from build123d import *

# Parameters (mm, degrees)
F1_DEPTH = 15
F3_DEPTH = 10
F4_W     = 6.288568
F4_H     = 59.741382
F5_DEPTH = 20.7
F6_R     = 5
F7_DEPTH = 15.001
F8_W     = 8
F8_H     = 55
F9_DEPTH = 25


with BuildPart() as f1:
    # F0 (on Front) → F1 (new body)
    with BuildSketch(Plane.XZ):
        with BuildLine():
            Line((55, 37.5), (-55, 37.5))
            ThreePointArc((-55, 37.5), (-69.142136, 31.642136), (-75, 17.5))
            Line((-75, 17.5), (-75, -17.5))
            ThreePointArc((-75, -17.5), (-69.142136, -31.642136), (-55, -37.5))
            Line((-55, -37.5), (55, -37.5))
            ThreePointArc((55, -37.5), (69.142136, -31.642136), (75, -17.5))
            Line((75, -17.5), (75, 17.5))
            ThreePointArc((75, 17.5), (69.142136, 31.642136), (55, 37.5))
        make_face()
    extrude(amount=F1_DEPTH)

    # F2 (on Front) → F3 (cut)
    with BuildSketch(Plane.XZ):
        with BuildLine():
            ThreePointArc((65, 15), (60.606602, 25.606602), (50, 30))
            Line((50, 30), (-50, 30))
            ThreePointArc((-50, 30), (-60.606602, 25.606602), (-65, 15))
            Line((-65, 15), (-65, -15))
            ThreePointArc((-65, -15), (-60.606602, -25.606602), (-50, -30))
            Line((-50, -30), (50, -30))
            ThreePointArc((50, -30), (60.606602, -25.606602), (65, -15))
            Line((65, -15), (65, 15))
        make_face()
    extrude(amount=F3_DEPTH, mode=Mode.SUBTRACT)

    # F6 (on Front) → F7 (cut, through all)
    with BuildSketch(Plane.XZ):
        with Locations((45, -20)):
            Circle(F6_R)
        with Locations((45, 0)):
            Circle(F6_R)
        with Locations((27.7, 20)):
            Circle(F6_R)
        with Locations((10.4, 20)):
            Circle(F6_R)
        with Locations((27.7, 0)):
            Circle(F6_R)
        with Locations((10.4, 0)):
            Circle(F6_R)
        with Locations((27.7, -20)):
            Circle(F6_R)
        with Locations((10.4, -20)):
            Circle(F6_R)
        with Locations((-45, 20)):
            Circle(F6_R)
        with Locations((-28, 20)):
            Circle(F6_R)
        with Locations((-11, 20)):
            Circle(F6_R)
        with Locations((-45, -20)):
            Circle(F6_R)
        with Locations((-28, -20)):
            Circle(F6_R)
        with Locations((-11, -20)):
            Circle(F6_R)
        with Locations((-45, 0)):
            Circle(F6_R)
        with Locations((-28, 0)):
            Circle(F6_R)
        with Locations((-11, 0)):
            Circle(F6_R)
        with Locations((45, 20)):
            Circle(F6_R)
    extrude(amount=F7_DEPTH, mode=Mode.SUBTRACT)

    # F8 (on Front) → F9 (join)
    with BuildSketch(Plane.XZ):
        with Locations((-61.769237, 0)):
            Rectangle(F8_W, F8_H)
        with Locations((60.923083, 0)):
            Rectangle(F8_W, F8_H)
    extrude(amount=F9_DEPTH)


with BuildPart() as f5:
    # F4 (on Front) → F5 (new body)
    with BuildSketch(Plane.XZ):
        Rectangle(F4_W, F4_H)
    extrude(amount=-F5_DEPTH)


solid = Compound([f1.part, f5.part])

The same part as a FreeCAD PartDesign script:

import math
import FreeCAD as App
import Part
import Sketcher
from FreeCAD import Vector

doc = App.newDocument("Part")
params = doc.addObject("Spreadsheet::Sheet", "Params")
for row, (alias, value) in enumerate([
    ("sketch1_radius", "19.999999 mm"),
    ("sketch1_width", "110 mm"),
    ("sketch1_height", "35 mm"),
    ("pad1_length", "15 mm"),
    ("sketch2_radius", "14.999999 mm"),
    ("sketch2_width", "100 mm"),
    ("sketch2_height", "30 mm"),
    ("pocket1_length", "10 mm"),
    ("sketch3_diameter", "10 mm"),
    ("sketch4_width", "8 mm"),
    ("sketch4_height", "55 mm"),
    ("pad2_length", "25 mm"),
    ("pad3_length", "20.7 mm"),
], start=1):
    params.set(f"A{row}", alias)
    params.set(f"B{row}", "=" + value)
    params.setAlias(f"B{row}", alias)

body = doc.addObject("PartDesign::Body", "Body")

# Sketch on XZ plane
sketch1 = doc.addObject("Sketcher::SketchObject", "Sketch")
body.addObject(sketch1)
sketch1.AttachmentSupport = (doc.XZ_Plane, [""])
sketch1.MapMode = "FlatFace"
sketch1.addGeometry([
    Part.LineSegment(Vector(55, 38, 0), Vector(-55, 38, 0)),  # 0
    Part.ArcOfCircle(Part.Circle(Vector(-55, 18, 0), Vector(0, 0, 1), 20), math.radians(90), math.radians(180)),  # 1
    Part.LineSegment(Vector(-75, 18, 0), Vector(-75, -18, 0)),  # 2
    Part.ArcOfCircle(Part.Circle(Vector(-55, -18, 0), Vector(0, 0, 1), 20), math.radians(180), math.radians(270)),  # 3
    Part.LineSegment(Vector(-55, -38, 0), Vector(55, -38, 0)),  # 4
    Part.ArcOfCircle(Part.Circle(Vector(55, -18, 0), Vector(0, 0, 1), 20), math.radians(-90), math.radians(0)),  # 5
    Part.LineSegment(Vector(75, -18, 0), Vector(75, 18, 0)),  # 6
    Part.ArcOfCircle(Part.Circle(Vector(55, 18, 0), Vector(0, 0, 1), 20), math.radians(0), math.radians(90)),  # 7
], False)
sketch1.addConstraint([
    Sketcher.Constraint("Tangent", 0, 2, 1, 1),
    Sketcher.Constraint("Tangent", 1, 2, 2, 1),
    Sketcher.Constraint("Tangent", 2, 2, 3, 1),
    Sketcher.Constraint("Tangent", 3, 2, 4, 1),
    Sketcher.Constraint("Tangent", 4, 2, 5, 1),
    Sketcher.Constraint("Tangent", 5, 2, 6, 1),
    Sketcher.Constraint("Tangent", 6, 2, 7, 1),
    Sketcher.Constraint("Tangent", 7, 2, 0, 1),
    Sketcher.Constraint("Horizontal", 0),
    Sketcher.Constraint("Vertical", 2),
    Sketcher.Constraint("Horizontal", 4),
    Sketcher.Constraint("Vertical", 6),
    Sketcher.Constraint("Equal", 1, 3),
    Sketcher.Constraint("Equal", 3, 5),
    Sketcher.Constraint("Equal", 5, 7),
    Sketcher.Constraint("Symmetric", 1, 3, 5, 3, -1, 1),
    Sketcher.Constraint("Radius", 1, 19.999999),
    Sketcher.Constraint("DistanceX", 0, 2, 0, 1, 110.0),
    Sketcher.Constraint("DistanceY", 2, 2, 2, 1, 35.0),
])
sketch1.setExpression("Constraints[16]", "Params.sketch1_radius")
sketch1.setExpression("Constraints[17]", "Params.sketch1_width")
sketch1.setExpression("Constraints[18]", "Params.sketch1_height")
pad1 = doc.addObject("PartDesign::Pad", "Pad")
body.addObject(pad1)
pad1.Profile = sketch1
pad1.setExpression("Length", "Params.pad1_length")

# Sketch on XZ plane
sketch2 = doc.addObject("Sketcher::SketchObject", "Sketch001")
body.addObject(sketch2)
sketch2.AttachmentSupport = (doc.XZ_Plane, [""])
sketch2.MapMode = "FlatFace"
sketch2.addGeometry([
    Part.ArcOfCircle(Part.Circle(Vector(50, 15, 0), Vector(0, 0, 1), 15), math.radians(0), math.radians(90)),  # 0
    Part.LineSegment(Vector(50, 30, 0), Vector(-50, 30, 0)),  # 1
    Part.ArcOfCircle(Part.Circle(Vector(-50, 15, 0), Vector(0, 0, 1), 15), math.radians(90), math.radians(180)),  # 2
    Part.LineSegment(Vector(-65, 15, 0), Vector(-65, -15, 0)),  # 3
    Part.ArcOfCircle(Part.Circle(Vector(-50, -15, 0), Vector(0, 0, 1), 15), math.radians(180), math.radians(270)),  # 4
    Part.LineSegment(Vector(-50, -30, 0), Vector(50, -30, 0)),  # 5
    Part.ArcOfCircle(Part.Circle(Vector(50, -15, 0), Vector(0, 0, 1), 15), math.radians(-90), math.radians(0)),  # 6
    Part.LineSegment(Vector(65, -15, 0), Vector(65, 15, 0)),  # 7
], False)
sketch2.addConstraint([
    Sketcher.Constraint("Tangent", 0, 2, 1, 1),
    Sketcher.Constraint("Tangent", 1, 2, 2, 1),
    Sketcher.Constraint("Tangent", 2, 2, 3, 1),
    Sketcher.Constraint("Tangent", 3, 2, 4, 1),
    Sketcher.Constraint("Tangent", 4, 2, 5, 1),
    Sketcher.Constraint("Tangent", 5, 2, 6, 1),
    Sketcher.Constraint("Tangent", 6, 2, 7, 1),
    Sketcher.Constraint("Tangent", 7, 2, 0, 1),
    Sketcher.Constraint("Horizontal", 1),
    Sketcher.Constraint("Vertical", 3),
    Sketcher.Constraint("Horizontal", 5),
    Sketcher.Constraint("Vertical", 7),
    Sketcher.Constraint("Equal", 0, 2),
    Sketcher.Constraint("Equal", 2, 4),
    Sketcher.Constraint("Equal", 4, 6),
    Sketcher.Constraint("Symmetric", 0, 3, 4, 3, -1, 1),
    Sketcher.Constraint("Radius", 0, 14.999999),
    Sketcher.Constraint("DistanceX", 1, 2, 1, 1, 100.0),
    Sketcher.Constraint("DistanceY", 3, 2, 3, 1, 30.0),
])
sketch2.setExpression("Constraints[16]", "Params.sketch2_radius")
sketch2.setExpression("Constraints[17]", "Params.sketch2_width")
sketch2.setExpression("Constraints[18]", "Params.sketch2_height")
pocket1 = doc.addObject("PartDesign::Pocket", "Pocket")
body.addObject(pocket1)
pocket1.Profile = sketch2
pocket1.setExpression("Length", "Params.pocket1_length")
pocket1.Reversed = True

# Sketch on XZ plane
sketch3 = doc.addObject("Sketcher::SketchObject", "Sketch002")
body.addObject(sketch3)
sketch3.AttachmentSupport = (doc.XZ_Plane, [""])
sketch3.MapMode = "FlatFace"
sketch3.addGeometry([
    Part.Circle(Vector(45, -20, 0), Vector(0, 0, 1), 5),  # 0
    Part.Circle(Vector(45, 0, 0), Vector(0, 0, 1), 5),  # 1
    Part.Circle(Vector(28, 20, 0), Vector(0, 0, 1), 5),  # 2
    Part.Circle(Vector(10, 20, 0), Vector(0, 0, 1), 5),  # 3
    Part.Circle(Vector(28, 0, 0), Vector(0, 0, 1), 5),  # 4
    Part.Circle(Vector(10, 0, 0), Vector(0, 0, 1), 5),  # 5
    Part.Circle(Vector(28, -20, 0), Vector(0, 0, 1), 5),  # 6
    Part.Circle(Vector(10, -20, 0), Vector(0, 0, 1), 5),  # 7
    Part.Circle(Vector(-45, 20, 0), Vector(0, 0, 1), 5),  # 8
    Part.Circle(Vector(-28, 20, 0), Vector(0, 0, 1), 5),  # 9
    Part.Circle(Vector(-11, 20, 0), Vector(0, 0, 1), 5),  # 10
    Part.Circle(Vector(-45, -20, 0), Vector(0, 0, 1), 5),  # 11
    Part.Circle(Vector(-28, -20, 0), Vector(0, 0, 1), 5),  # 12
    Part.Circle(Vector(-11, -20, 0), Vector(0, 0, 1), 5),  # 13
    Part.Circle(Vector(-45, 0, 0), Vector(0, 0, 1), 5),  # 14
    Part.Circle(Vector(-28, 0, 0), Vector(0, 0, 1), 5),  # 15
    Part.Circle(Vector(-11, 0, 0), Vector(0, 0, 1), 5),  # 16
    Part.Circle(Vector(45, 20, 0), Vector(0, 0, 1), 5),  # 17
], False)
sketch3.addConstraint([
    Sketcher.Constraint("Equal", 0, 1),
    Sketcher.Constraint("Equal", 1, 2),
    Sketcher.Constraint("Equal", 2, 3),
    Sketcher.Constraint("Equal", 3, 4),
    Sketcher.Constraint("Equal", 4, 5),
    Sketcher.Constraint("Equal", 5, 6),
    Sketcher.Constraint("Equal", 6, 7),
    Sketcher.Constraint("Equal", 7, 8),
    Sketcher.Constraint("Equal", 8, 9),
    Sketcher.Constraint("Equal", 9, 10),
    Sketcher.Constraint("Equal", 10, 11),
    Sketcher.Constraint("Equal", 11, 12),
    Sketcher.Constraint("Equal", 12, 13),
    Sketcher.Constraint("Equal", 13, 14),
    Sketcher.Constraint("Equal", 14, 15),
    Sketcher.Constraint("Equal", 15, 16),
    Sketcher.Constraint("Equal", 16, 17),
    Sketcher.Constraint("Symmetric", 0, 3, 8, 3, -1, 1),
    Sketcher.Constraint("Symmetric", 1, 3, 14, 3, -1, 1),
    Sketcher.Constraint("Symmetric", 11, 3, 17, 3, -1, 1),
    Sketcher.Constraint("Symmetric", 0, 3, 11, 3, -2),
    Sketcher.Constraint("Symmetric", 2, 3, 6, 3, -1),
    Sketcher.Constraint("Symmetric", 3, 3, 7, 3, -1),
    Sketcher.Constraint("Symmetric", 9, 3, 12, 3, -1),
    Sketcher.Constraint("Symmetric", 10, 3, 13, 3, -1),
    Sketcher.Constraint("PointOnObject", 1, 3, -1),
    Sketcher.Constraint("PointOnObject", 4, 3, -1),
    Sketcher.Constraint("PointOnObject", 5, 3, -1),
    Sketcher.Constraint("PointOnObject", 15, 3, -1),
    Sketcher.Constraint("PointOnObject", 16, 3, -1),
    Sketcher.Constraint("Horizontal", 2, 3, 3, 3),
    Sketcher.Constraint("Horizontal", 0, 3, 6, 3),
    Sketcher.Constraint("Horizontal", 8, 3, 9, 3),
    Sketcher.Constraint("Horizontal", 9, 3, 10, 3),
    Sketcher.Constraint("Vertical", 0, 3, 1, 3),
    Sketcher.Constraint("Vertical", 2, 3, 4, 3),
    Sketcher.Constraint("Vertical", 3, 3, 5, 3),
    Sketcher.Constraint("Vertical", 12, 3, 15, 3),
    Sketcher.Constraint("Vertical", 13, 3, 16, 3),
    Sketcher.Constraint("Diameter", 0, 10.0),
    Sketcher.Constraint("DistanceX", -1, 1, 0, 3, 45.0),
    Sketcher.Constraint("DistanceY", 0, 3, -1, 1, 20.0),
    Sketcher.Constraint("DistanceX", 9, 3, -1, 1, 28.0),
    Sketcher.Constraint("DistanceX", 10, 3, -1, 1, 11.0),
    Sketcher.Constraint("DistanceX", -1, 1, 2, 3, 27.7),
    Sketcher.Constraint("DistanceX", -1, 1, 3, 3, 10.4),
])
sketch3.setExpression("Constraints[39]", "Params.sketch3_diameter")
pocket2 = doc.addObject("PartDesign::Pocket", "Pocket001")
body.addObject(pocket2)
pocket2.Profile = sketch3
pocket2.Type = "ThroughAll"
pocket2.Reversed = True

# Sketch on XZ plane
sketch4 = doc.addObject("Sketcher::SketchObject", "Sketch003")
body.addObject(sketch4)
sketch4.AttachmentSupport = (doc.XZ_Plane, [""])
sketch4.MapMode = "FlatFace"
sketch4.addGeometry([
    Part.LineSegment(Vector(-66, 28, 0), Vector(-66, -28, 0)),  # 0
    Part.LineSegment(Vector(-66, -28, 0), Vector(-58, -28, 0)),  # 1
    Part.LineSegment(Vector(-58, -28, 0), Vector(-58, 28, 0)),  # 2
    Part.LineSegment(Vector(-58, 28, 0), Vector(-66, 28, 0)),  # 3
    Part.LineSegment(Vector(57, 28, 0), Vector(57, -28, 0)),  # 4
    Part.LineSegment(Vector(57, -28, 0), Vector(65, -28, 0)),  # 5
    Part.LineSegment(Vector(65, -28, 0), Vector(65, 28, 0)),  # 6
    Part.LineSegment(Vector(65, 28, 0), Vector(57, 28, 0)),  # 7
], False)
sketch4.addConstraint([
    Sketcher.Constraint("Coincident", 0, 2, 1, 1),
    Sketcher.Constraint("Coincident", 1, 2, 2, 1),
    Sketcher.Constraint("Coincident", 2, 2, 3, 1),
    Sketcher.Constraint("Coincident", 3, 2, 0, 1),
    Sketcher.Constraint("Coincident", 4, 2, 5, 1),
    Sketcher.Constraint("Coincident", 5, 2, 6, 1),
    Sketcher.Constraint("Coincident", 6, 2, 7, 1),
    Sketcher.Constraint("Coincident", 7, 2, 4, 1),
    Sketcher.Constraint("Vertical", 0),
    Sketcher.Constraint("Horizontal", 1),
    Sketcher.Constraint("Vertical", 2),
    Sketcher.Constraint("Horizontal", 3),
    Sketcher.Constraint("Vertical", 4),
    Sketcher.Constraint("Horizontal", 5),
    Sketcher.Constraint("Vertical", 6),
    Sketcher.Constraint("Horizontal", 7),
    Sketcher.Constraint("Horizontal", 1, 2, 4, 2),
    Sketcher.Constraint("Horizontal", 3, 2, 6, 2),
    Sketcher.Constraint("Equal", 3, 5),
    Sketcher.Constraint("DistanceX", 1, 1, 1, 2, 8.0),
    Sketcher.Constraint("DistanceY", 0, 2, 0, 1, 55.0),
    Sketcher.Constraint("DistanceY", 0, 2, -1, 1, 27.5),
    Sketcher.Constraint("DistanceX", 1, 2, 4, 2, 114.69232),
    Sketcher.Constraint("DistanceX", 0, 2, -1, 1, 65.769237),
])
sketch4.setExpression("Constraints[19]", "Params.sketch4_width")
sketch4.setExpression("Constraints[20]", "Params.sketch4_height")
pad2 = doc.addObject("PartDesign::Pad", "Pad001")
body.addObject(pad2)
pad2.Profile = sketch4
pad2.setExpression("Length", "Params.pad2_length")
body2 = doc.addObject("PartDesign::Body", "Body001")

# Sketch on XZ plane
sketch5 = doc.addObject("Sketcher::SketchObject", "Sketch004")
body2.addObject(sketch5)
sketch5.AttachmentSupport = (doc.getObject("XZ_Plane001"), [""])
sketch5.MapMode = "FlatFace"
sketch5.addGeometry([
    Part.LineSegment(Vector(-3, 30, 0), Vector(-3, -30, 0)),
    Part.LineSegment(Vector(-3, -30, 0), Vector(3, -30, 0)),
    Part.LineSegment(Vector(3, -30, 0), Vector(3, 30, 0)),
    Part.LineSegment(Vector(3, 30, 0), Vector(-3, 30, 0)),
], False)
sketch5.addConstraint([
    Sketcher.Constraint("Coincident", 0, 2, 1, 1),
    Sketcher.Constraint("Coincident", 1, 2, 2, 1),
    Sketcher.Constraint("Coincident", 2, 2, 3, 1),
    Sketcher.Constraint("Coincident", 3, 2, 0, 1),
    Sketcher.Constraint("Vertical", 0),
    Sketcher.Constraint("Horizontal", 1),
    Sketcher.Constraint("Vertical", 2),
    Sketcher.Constraint("Horizontal", 3),
    Sketcher.Constraint("Symmetric", 0, 2, 2, 2, -1, 1),
    Sketcher.Constraint("DistanceX", 1, 1, 1, 2, 6.288568),
    Sketcher.Constraint("DistanceY", 0, 2, 0, 1, 59.741382),
])
pad3 = doc.addObject("PartDesign::Pad", "Pad002")
body2.addObject(pad3)
pad3.Profile = sketch5
pad3.setExpression("Length", "Params.pad3_length")
pad3.Reversed = True

doc.recompute()
